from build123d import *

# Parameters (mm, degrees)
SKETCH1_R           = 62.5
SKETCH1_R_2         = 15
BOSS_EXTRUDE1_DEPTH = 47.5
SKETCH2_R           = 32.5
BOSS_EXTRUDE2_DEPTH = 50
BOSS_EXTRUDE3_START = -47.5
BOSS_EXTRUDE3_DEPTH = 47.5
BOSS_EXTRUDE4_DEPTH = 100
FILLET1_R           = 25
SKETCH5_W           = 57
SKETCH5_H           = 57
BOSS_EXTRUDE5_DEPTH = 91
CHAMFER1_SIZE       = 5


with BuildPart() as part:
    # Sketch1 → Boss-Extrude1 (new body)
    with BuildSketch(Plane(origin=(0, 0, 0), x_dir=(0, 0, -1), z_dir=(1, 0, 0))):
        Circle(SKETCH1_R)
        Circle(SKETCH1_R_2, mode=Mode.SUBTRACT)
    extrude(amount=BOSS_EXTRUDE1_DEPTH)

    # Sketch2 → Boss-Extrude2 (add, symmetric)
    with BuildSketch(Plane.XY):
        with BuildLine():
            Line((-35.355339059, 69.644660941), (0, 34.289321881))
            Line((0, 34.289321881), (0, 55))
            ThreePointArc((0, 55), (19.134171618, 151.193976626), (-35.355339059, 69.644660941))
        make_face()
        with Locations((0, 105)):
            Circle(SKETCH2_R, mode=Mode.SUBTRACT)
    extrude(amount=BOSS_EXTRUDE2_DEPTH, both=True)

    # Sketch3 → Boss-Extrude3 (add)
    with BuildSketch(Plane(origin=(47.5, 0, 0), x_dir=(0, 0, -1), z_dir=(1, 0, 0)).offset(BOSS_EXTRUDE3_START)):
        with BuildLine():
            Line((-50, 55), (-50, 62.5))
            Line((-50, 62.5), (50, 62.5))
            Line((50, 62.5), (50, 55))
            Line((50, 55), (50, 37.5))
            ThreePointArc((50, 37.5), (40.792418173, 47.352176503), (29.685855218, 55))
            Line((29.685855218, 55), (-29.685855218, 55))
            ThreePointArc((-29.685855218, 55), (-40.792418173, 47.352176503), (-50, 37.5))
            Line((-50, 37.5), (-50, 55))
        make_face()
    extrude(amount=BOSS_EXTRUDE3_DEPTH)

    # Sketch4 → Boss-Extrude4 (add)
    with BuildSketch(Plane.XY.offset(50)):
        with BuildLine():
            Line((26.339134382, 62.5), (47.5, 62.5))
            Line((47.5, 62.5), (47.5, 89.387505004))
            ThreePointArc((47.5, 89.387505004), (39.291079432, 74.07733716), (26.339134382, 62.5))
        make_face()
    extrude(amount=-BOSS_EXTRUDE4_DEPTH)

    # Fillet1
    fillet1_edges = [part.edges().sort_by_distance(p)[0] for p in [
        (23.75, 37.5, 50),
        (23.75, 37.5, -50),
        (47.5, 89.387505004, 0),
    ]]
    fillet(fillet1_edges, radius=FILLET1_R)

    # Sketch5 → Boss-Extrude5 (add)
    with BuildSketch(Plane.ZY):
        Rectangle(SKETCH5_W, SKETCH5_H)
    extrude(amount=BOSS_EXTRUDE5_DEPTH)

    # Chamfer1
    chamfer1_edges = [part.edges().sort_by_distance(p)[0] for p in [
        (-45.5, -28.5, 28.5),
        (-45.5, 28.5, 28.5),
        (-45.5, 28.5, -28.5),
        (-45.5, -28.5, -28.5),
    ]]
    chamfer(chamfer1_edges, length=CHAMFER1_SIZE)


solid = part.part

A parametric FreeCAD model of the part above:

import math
import FreeCAD as App
import Part
import Sketcher

V = App.Vector
Q = App.Units.Quantity


def edges_at(feature, points):
    """Names of the edges that pass closest to the given points."""
    edges = feature.Shape.Edges
    near = lambda p: min(range(len(edges)), key=lambda i: edges[i].distToShape(Part.Vertex(*p))[0])
    return sorted({f"Edge{near(p) + 1}" for p in points})


def add_polygon(sketch, points):
    """Adds a closed chain of lines whose ends are joined by coincident constraints."""
    first, n = sketch.GeometryCount, len(points)
    for a, b in zip(points, points[1:] + points[:1]):
        sketch.addGeometry(Part.LineSegment(App.Vector(*a, 0), App.Vector(*b, 0)), False)
    for i in range(n):
        sketch.addConstraint(Sketcher.Constraint("Coincident", first + i, 2, first + (i + 1) % n, 1))

doc = App.newDocument("Part")
body = doc.addObject("PartDesign::Body", "Body")

# Sketch on YZ plane
sketch1 = doc.addObject("Sketcher::SketchObject", "Sketch")
body.addObject(sketch1)
sketch1.AttachmentSupport = (doc.YZ_Plane, [""])
sketch1.MapMode = "FlatFace"
sketch1.addGeometry([
    Part.Circle(V(0, 0, 0), V(0, 0, 1), 62),
    Part.Circle(V(0, 0, 0), V(0, 0, 1), 15),
], False)
sketch1.addConstraint([
    Sketcher.Constraint("Coincident", 0, 3, -1, 1),
    Sketcher.Constraint("Coincident", 1, 3, -1, 1),
    Sketcher.Constraint("Diameter", 0, 125.0),
    Sketcher.Constraint("Diameter", 1, 30.0),
])
pad1 = doc.addObject("PartDesign::Pad", "Pad")
body.addObject(pad1)
pad1.Profile = sketch1
pad1.Length = 47.5

# Sketch on XY plane
sketch2 = doc.addObject("Sketcher::SketchObject", "Sketch001")
body.addObject(sketch2)
sketch2.AttachmentSupport = (doc.XY_Plane, [""])
sketch2.MapMode = "FlatFace"
sketch2.addGeometry([
    Part.LineSegment(V(-35, 70, 0), V(0, 34, 0)),
    Part.LineSegment(V(0, 34, 0), V(0, 55, 0)),
    Part.ArcOfCircle(Part.Circle(V(0, 105, 0), V(0, 0, 1), 50), math.radians(-90), math.radians(225)),
    Part.Circle(V(0, 105, 0), V(0, 0, 1), 32),
], False)
sketch2.addConstraint([
    Sketcher.Constraint("Coincident", 0, 2, 1, 1),
    Sketcher.Constraint("Coincident", 1, 2, 2, 1),
    Sketcher.Constraint("Tangent", 2, 2, 0, 1),
    Sketcher.Constraint("Vertical", 1),
    Sketcher.Constraint("Coincident", 3, 3, 2, 3),
    Sketcher.Constraint("PointOnObject", 2, 3, -2),
    Sketcher.Constraint("PointOnObject", 0, 2, -2),
    Sketcher.Constraint("Diameter", 3, 65.0),
    Sketcher.Constraint("Radius", 2, 50.0),
    Sketcher.Constraint("Angle", 0, Q("-45 deg")),
    Sketcher.Constraint("DistanceY", -1, 1, 2, 3, 105.0),
])
pad2 = doc.addObject("PartDesign::Pad", "Pad001")
body.addObject(pad2)
pad2.Profile = sketch2
pad2.Length = 100
pad2.Midplane = True

# Sketch on YZ plane
sketch3 = doc.addObject("Sketcher::SketchObject", "Sketch002")
body.addObject(sketch3)
sketch3.AttachmentSupport = (doc.YZ_Plane, [""])
sketch3.MapMode = "FlatFace"
sketch3.addGeometry([
    Part.LineSegment(V(62, -50, 0), V(62, 50, 0)),  # 0
    Part.LineSegment(V(62, 50, 0), V(38, 50, 0)),  # 1
    Part.ArcOfCircle(Part.Circle(V(0, 0, 0), V(0, 0, 1), 63), math.radians(28), math.radians(53)),  # 2
    Part.LineSegment(V(55, 30, 0), V(55, -30, 0)),  # 3
    Part.ArcOfCircle(Part.Circle(V(0, 0, 0), V(0, 0, 1), 63), math.radians(-53), math.radians(-28)),  # 4
    Part.LineSegment(V(38, -50, 0), V(62, -50, 0)),  # 5
], False)
sketch3.addConstraint([
    Sketcher.Constraint("Coincident", 0, 2, 1, 1),
    Sketcher.Constraint("Coincident", 1, 2, 2, 2),
    Sketcher.Constraint("Coincident", 2, 1, 3, 1),
    Sketcher.Constraint("Coincident", 3, 2, 4, 2),
    Sketcher.Constraint("Coincident", 4, 1, 5, 1),
    Sketcher.Constraint("Coincident", 5, 2, 0, 1),
    Sketcher.Constraint("Vertical", 0),
    Sketcher.Constraint("Horizontal", 1),
    Sketcher.Constraint("Vertical", 3),
    Sketcher.Constraint("Horizontal", 5),
    Sketcher.Constraint("Coincident", 2, 3, -1, 1),
    Sketcher.Constraint("Coincident", 4, 3, -1, 1),
    Sketcher.Constraint("Equal", 2, 4),
    Sketcher.Constraint("Vertical", 1, 2, 4, 1),
    Sketcher.Constraint("Radius", 2, 62.5),
    Sketcher.Constraint("DistanceX", 1, 2, 1, 1, 25.0),
    Sketcher.Constraint("DistanceY", 0, 1, 0, 2, 100.0),
    Sketcher.Constraint("DistanceX", -1, 1, 2, 1, 55.0),
])
pad3 = doc.addObject("PartDesign::Pad", "Pad002")
body.addObject(pad3)
pad3.Profile = sketch3
pad3.Length = 47.5

# Sketch on XY plane
sketch4 = doc.addObject("Sketcher::SketchObject", "Sketch003")
body.addObject(sketch4)
sketch4.AttachmentSupport = (doc.XY_Plane, [""])
sketch4.MapMode = "FlatFace"
sketch4.AttachmentOffset = App.Placement(V(0, 0, 50), App.Rotation())
sketch4.addGeometry([
    Part.LineSegment(V(26, 62, 0), V(48, 62, 0)),
    Part.LineSegment(V(48, 62, 0), V(48, 89, 0)),
    Part.ArcOfCircle(Part.Circle(V(0, 105, 0), V(0, 0, 1), 50), math.radians(-58), math.radians(-18)),
], False)
sketch4.addConstraint([
    Sketcher.Constraint("Coincident", 0, 2, 1, 1),
    Sketcher.Constraint("Coincident", 1, 2, 2, 2),
    Sketcher.Constraint("Coincident", 2, 1, 0, 1),
    Sketcher.Constraint("Horizontal", 0),
    Sketcher.Constraint("Vertical", 1),
    Sketcher.Constraint("PointOnObject", 2, 3, -2),
    Sketcher.Constraint("Radius", 2, 50.0),
    Sketcher.Constraint("DistanceY", -1, 1, 2, 3, 105.0),
    Sketcher.Constraint("DistanceX", -1, 1, 0, 2, 47.5),
    Sketcher.Constraint("DistanceY", -1, 1, 0, 2, 62.5),
])
pad4 = doc.addObject("PartDesign::Pad", "Pad003")
body.addObject(pad4)
pad4.Profile = sketch4
pad4.Length = 100
pad4.Reversed = True
doc.recompute()

fillet = doc.addObject("PartDesign::Fillet", "Fillet")
body.addObject(fillet)
fillet.Base = (pad4, edges_at(pad4, [(23.75, 37.5, 50), (23.75, 37.5, -50), (47.5, 89.388, 0)]))
fillet.Radius = 25

# Sketch on YZ plane
sketch5 = doc.addObject("Sketcher::SketchObject", "Sketch004")
body.addObject(sketch5)
sketch5.AttachmentSupport = (doc.YZ_Plane, [""])
sketch5.MapMode = "FlatFace"
add_polygon(sketch5, [(28, -28), (-28, -28), (-28, 28), (28, 28)])  # lines 0-3
sketch5.addConstraint([
    Sketcher.Constraint("Horizontal", 0),
    Sketcher.Constraint("Vertical", 1),
    Sketcher.Constraint("Horizontal", 2),
    Sketcher.Constraint("Vertical", 3),
    Sketcher.Constraint("Symmetric", 0, 2, 2, 2, -1, 1),
    Sketcher.Constraint("Equal", 2, 1),
    Sketcher.Constraint("DistanceX", 0, 2, 0, 1, 57.0),
])
pad5 = doc.addObject("PartDesign::Pad", "Pad004")
body.addObject(pad5)
pad5.Profile = sketch5
pad5.Length = 91
pad5.Reversed = True
doc.recompute()

chamfer = doc.addObject("PartDesign::Chamfer", "Chamfer")
body.addObject(chamfer)
chamfer.Base = (pad5, edges_at(pad5, [
    (-45.5, -28.5, 28.5),
    (-45.5, 28.5, 28.5),
    (-45.5, 28.5, -28.5),
    (-45.5, -28.5, -28.5),
]))
chamfer.Size = 5

doc.recompute()
